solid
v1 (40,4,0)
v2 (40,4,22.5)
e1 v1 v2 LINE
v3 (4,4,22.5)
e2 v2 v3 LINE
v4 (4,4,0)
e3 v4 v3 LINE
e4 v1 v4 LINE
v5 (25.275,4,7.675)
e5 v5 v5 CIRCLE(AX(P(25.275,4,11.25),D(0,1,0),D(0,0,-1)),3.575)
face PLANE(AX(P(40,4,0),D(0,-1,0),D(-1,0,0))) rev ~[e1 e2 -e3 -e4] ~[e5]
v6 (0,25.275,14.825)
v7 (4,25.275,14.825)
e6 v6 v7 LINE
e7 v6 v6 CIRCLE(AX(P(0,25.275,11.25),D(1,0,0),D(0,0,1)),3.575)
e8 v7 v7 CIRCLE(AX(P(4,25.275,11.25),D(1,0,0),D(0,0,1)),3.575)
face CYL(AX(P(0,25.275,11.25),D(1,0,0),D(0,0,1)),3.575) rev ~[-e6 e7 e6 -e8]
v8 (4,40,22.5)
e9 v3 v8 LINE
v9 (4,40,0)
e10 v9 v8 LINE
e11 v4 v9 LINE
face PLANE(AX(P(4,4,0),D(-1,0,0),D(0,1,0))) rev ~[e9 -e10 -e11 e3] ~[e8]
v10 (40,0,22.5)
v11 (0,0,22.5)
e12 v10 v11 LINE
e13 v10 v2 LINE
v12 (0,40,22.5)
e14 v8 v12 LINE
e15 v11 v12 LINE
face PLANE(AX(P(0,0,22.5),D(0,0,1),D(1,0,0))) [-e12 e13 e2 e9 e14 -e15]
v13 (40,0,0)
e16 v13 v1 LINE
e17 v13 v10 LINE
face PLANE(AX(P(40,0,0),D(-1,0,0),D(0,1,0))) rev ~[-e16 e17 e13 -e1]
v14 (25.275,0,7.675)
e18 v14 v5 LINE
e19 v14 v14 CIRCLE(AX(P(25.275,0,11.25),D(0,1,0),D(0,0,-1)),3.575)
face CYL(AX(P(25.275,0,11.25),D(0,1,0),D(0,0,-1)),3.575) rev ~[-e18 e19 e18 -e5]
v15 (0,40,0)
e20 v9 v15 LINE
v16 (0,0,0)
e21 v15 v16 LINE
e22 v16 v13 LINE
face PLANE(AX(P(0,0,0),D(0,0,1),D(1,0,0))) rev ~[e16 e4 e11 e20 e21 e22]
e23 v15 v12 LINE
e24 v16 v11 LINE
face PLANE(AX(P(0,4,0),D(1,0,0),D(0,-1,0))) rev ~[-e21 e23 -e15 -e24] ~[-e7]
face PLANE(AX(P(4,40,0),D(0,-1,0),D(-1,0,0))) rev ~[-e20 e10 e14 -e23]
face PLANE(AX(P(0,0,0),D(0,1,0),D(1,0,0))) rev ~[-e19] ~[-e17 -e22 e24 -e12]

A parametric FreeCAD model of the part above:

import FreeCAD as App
import Part
import Sketcher


def add_polygon(sketch, points):
    """Adds a closed chain of lines whose ends are joined by coincident constraints."""
    first, n = sketch.GeometryCount, len(points)
    for a, b in zip(points, points[1:] + points[:1]):
        sketch.addGeometry(Part.LineSegment(App.Vector(*a, 0), App.Vector(*b, 0)), False)
    for i in range(n):
        sketch.addConstraint(Sketcher.Constraint("Coincident", first + i, 2, first + (i + 1) % n, 1))

doc = App.newDocument("Part")
body = doc.addObject("PartDesign::Body", "Body")

# Sketch on XY plane
sketch1 = body.newObject("Sketcher::SketchObject", "Sketch")
sketch1.AttachmentSupport = (doc.getObject("XY_Plane"), [""])
sketch1.MapMode = "FlatFace"
add_polygon(sketch1, [(0, 0), (40, 0), (40, 4), (4, 4), (4, 40), (0, 40)])  # lines 0-5
sketch1.addConstraint(Sketcher.Constraint("Horizontal", 0))
sketch1.addConstraint(Sketcher.Constraint("Vertical", 1))
sketch1.addConstraint(Sketcher.Constraint("Horizontal", 2))
sketch1.addConstraint(Sketcher.Constraint("Vertical", 3))
sketch1.addConstraint(Sketcher.Constraint("Horizontal", 4))
sketch1.addConstraint(Sketcher.Constraint("Vertical", 5))
sketch1.addConstraint(Sketcher.Constraint("Coincident", 5, 2, -1, 1))
sketch1.addConstraint(Sketcher.Constraint("Equal", 4, 1))
sketch1.addConstraint(Sketcher.Constraint("Equal", 2, 3))
sketch1.addConstraint(Sketcher.Constraint("DistanceX", 0, 1, 0, 2, 40.0))
sketch1.addConstraint(Sketcher.Constraint("DistanceX", 4, 2, 4, 1, 4.0))
pad1 = body.newObject("PartDesign::Pad", "Pad")
pad1.Profile = sketch1
pad1.Length = 22.5

# Sketch on YZ plane
sketch2 = body.newObject("Sketcher::SketchObject", "Sketch001")
sketch2.AttachmentSupport = (doc.getObject("YZ_Plane"), [""])
sketch2.MapMode = "FlatFace"
sketch2.addGeometry(Part.Circle(App.Vector(25.3, 11.2, 0), App.Vector(0, 0, 1), 3.6), False)
sketch2.addConstraint(Sketcher.Constraint("Diameter", 0, 7.15))
sketch2.addConstraint(Sketcher.Constraint("DistanceY", -1, 1, 0, 3, 11.25))
sketch2.addConstraint(Sketcher.Constraint("DistanceX", -1, 1, 0, 3, 25.275))
doc.recompute()
hole = body.newObject("PartDesign::Hole", "Hole")
hole.Profile = sketch2
hole.ThreadType = "None"
hole.Diameter = 7.15
hole.DepthType = "Dimension"
hole.Depth = 5
hole.DrillPoint = "Flat"
hole.Reversed = True

# Sketch on XZ plane
sketch3 = body.newObject("Sketcher::SketchObject", "Sketch002")
sketch3.AttachmentSupport = (doc.getObject("XZ_Plane"), [""])
sketch3.MapMode = "FlatFace"
sketch3.addGeometry(Part.Circle(App.Vector(25.3, 11.2, 0), App.Vector(0, 0, 1), 3.6), False)
sketch3.addConstraint(Sketcher.Constraint("Diameter", 0, 7.15))
sketch3.addConstraint(Sketcher.Constraint("DistanceY", -1, 1, 0, 3, 11.25))
sketch3.addConstraint(Sketcher.Constraint("DistanceX", -1, 1, 0, 3, 25.275))
doc.recompute()
hole2 = body.newObject("PartDesign::Hole", "Hole001")
hole2.Profile = sketch3
hole2.ThreadType = "None"
hole2.Diameter = 7.15
hole2.DepthType = "Dimension"
hole2.Depth = 5
hole2.DrillPoint = "Flat"

doc.recompute()
